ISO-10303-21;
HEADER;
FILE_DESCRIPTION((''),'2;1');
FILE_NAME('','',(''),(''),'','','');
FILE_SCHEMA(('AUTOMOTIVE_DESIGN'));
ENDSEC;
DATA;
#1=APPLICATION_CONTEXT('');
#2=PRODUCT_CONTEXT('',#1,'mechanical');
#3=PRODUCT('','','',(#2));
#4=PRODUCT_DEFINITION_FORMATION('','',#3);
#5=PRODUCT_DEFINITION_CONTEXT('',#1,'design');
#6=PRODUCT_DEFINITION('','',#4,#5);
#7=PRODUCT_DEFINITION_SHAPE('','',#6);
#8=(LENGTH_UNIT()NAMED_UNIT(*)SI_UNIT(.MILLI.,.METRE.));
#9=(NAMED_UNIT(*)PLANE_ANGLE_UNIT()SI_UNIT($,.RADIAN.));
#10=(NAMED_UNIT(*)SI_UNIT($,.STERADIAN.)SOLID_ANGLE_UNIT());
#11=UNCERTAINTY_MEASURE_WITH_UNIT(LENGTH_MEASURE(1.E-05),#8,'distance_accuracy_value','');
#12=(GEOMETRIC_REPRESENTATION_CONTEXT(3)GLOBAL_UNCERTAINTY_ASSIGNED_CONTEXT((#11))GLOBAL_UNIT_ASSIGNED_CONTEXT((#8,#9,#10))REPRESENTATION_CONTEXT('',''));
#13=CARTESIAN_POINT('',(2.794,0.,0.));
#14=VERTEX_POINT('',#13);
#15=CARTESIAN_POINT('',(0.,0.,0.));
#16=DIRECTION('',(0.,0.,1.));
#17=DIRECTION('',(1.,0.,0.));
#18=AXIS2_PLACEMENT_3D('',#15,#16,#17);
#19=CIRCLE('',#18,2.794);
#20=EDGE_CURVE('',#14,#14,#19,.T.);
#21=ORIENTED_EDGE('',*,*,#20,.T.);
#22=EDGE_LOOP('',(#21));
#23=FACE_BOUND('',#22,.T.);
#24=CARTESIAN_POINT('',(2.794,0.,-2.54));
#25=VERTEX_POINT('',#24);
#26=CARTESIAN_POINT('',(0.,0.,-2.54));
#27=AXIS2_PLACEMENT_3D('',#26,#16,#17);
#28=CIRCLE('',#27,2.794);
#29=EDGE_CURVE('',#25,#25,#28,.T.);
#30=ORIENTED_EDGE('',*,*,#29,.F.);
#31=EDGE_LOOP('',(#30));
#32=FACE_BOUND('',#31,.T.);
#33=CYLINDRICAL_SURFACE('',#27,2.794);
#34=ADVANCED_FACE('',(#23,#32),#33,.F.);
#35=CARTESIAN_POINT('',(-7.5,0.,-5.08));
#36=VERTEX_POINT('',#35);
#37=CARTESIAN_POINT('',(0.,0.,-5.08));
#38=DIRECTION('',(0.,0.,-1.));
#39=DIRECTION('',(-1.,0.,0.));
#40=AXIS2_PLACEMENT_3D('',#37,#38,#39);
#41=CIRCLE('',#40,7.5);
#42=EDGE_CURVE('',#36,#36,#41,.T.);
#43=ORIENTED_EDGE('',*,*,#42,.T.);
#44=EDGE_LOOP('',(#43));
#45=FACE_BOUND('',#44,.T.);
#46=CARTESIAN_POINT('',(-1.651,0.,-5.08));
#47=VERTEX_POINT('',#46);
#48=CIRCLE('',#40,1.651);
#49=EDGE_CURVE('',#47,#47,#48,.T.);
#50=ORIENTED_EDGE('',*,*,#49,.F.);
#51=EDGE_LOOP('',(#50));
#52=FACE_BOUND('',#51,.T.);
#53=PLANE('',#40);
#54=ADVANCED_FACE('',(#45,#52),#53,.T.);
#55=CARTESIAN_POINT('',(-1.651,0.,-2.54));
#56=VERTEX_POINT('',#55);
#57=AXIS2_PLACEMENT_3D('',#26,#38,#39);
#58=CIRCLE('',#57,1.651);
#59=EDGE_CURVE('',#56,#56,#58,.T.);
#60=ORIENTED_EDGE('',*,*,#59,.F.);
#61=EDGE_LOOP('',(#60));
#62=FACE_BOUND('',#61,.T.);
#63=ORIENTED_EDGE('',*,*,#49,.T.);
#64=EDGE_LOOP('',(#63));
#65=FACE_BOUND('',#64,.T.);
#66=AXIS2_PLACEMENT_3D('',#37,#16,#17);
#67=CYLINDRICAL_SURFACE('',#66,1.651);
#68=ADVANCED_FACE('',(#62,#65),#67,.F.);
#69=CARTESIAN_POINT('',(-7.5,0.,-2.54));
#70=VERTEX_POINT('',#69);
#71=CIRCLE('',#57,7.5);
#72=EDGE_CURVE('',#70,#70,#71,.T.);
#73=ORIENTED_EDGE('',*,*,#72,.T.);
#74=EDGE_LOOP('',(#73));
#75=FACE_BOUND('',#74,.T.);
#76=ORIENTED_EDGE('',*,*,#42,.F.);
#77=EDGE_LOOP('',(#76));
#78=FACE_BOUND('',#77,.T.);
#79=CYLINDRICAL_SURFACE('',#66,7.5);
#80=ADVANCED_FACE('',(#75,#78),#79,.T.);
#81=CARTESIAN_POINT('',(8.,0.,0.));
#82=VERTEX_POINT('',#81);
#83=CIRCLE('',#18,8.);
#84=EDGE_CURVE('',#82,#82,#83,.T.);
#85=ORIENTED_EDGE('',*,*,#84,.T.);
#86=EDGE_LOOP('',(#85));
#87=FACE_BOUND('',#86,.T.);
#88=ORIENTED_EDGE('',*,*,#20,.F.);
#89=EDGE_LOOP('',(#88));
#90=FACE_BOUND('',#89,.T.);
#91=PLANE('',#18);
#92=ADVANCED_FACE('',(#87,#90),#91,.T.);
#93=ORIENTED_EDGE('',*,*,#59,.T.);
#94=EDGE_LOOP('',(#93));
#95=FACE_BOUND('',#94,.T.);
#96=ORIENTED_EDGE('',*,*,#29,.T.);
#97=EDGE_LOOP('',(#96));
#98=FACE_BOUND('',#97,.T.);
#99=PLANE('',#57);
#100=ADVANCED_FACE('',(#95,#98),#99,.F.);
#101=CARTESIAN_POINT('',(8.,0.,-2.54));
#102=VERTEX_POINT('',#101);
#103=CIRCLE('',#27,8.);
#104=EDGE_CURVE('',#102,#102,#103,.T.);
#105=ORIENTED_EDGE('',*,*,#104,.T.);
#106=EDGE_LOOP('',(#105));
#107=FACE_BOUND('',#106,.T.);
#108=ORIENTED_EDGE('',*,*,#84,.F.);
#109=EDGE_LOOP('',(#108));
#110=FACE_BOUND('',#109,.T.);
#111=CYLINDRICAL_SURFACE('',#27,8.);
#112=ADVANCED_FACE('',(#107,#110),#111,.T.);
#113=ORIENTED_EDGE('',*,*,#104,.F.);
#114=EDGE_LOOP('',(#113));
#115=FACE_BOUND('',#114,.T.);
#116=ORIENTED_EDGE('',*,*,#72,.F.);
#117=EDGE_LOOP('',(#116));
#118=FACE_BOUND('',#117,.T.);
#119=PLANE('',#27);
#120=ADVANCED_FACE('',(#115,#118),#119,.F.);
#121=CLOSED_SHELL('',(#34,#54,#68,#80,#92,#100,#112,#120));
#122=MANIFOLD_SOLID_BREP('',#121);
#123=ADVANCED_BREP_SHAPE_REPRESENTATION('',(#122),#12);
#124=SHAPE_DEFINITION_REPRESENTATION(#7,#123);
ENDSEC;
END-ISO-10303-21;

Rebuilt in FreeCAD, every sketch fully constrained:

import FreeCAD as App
import Part
import Sketcher
from FreeCAD import Vector
Q = App.Units.Quantity

doc = App.newDocument("Part")
params = doc.addObject("Spreadsheet::Sheet", "Params")
for row, (alias, value) in enumerate([
    ("sketch1_diameter", "0.22 in"),
    ("pad1_length", "0.1 in"),
    ("sketch2_diameter", "0.13 in"),
    ("pad2_length", "0.1 in"),
], start=1):
    params.set(f"A{row}", alias)
    params.set(f"B{row}", "=" + value)
    params.setAlias(f"B{row}", alias)

body = doc.addObject("PartDesign::Body", "Body")

# Sketch on XY plane
sketch1 = body.newObject("Sketcher::SketchObject", "Sketch")
sketch1.AttachmentSupport = (doc.getObject("XY_Plane"), [""])
sketch1.MapMode = "FlatFace"
sketch1.addGeometry([
    Part.Circle(Vector(0, 0, 0), Vector(0, 0, 1), 8),
    Part.Circle(Vector(0, 0, 0), Vector(0, 0, 1), 2.8),
], False)
sketch1.addConstraint([
    Sketcher.Constraint("Coincident", 0, 3, -1, 1),
    Sketcher.Constraint("Coincident", 1, 3, -1, 1),
    Sketcher.Constraint("Diameter", 1, Q("0.22 in")),
    Sketcher.Constraint("Diameter", 0, Q("16 mm")),
])
sketch1.setExpression("Constraints[2]", "Params.sketch1_diameter")
pad1 = body.newObject("PartDesign::Pad", "Pad")
pad1.Profile = sketch1
pad1.setExpression("Length", "Params.pad1_length")
pad1.Reversed = True

# Sketch on XY plane
sketch2 = body.newObject("Sketcher::SketchObject", "Sketch001")
sketch2.AttachmentSupport = (doc.getObject("XY_Plane"), [""])
sketch2.MapMode = "FlatFace"
sketch2.AttachmentOffset = App.Placement(Vector(0, 0, -0.1 * 25.4), App.Rotation())
sketch2.addGeometry([
    Part.Circle(Vector(0, 0, 0), Vector(0, 0, 1), 7.5),
    Part.Circle(Vector(0, 0, 0), Vector(0, 0, 1), 1.7),
], False)
sketch2.addConstraint([
    Sketcher.Constraint("Coincident", 0, 3, -1, 1),
    Sketcher.Constraint("Coincident", 1, 3, -1, 1),
    Sketcher.Constraint("Diameter", 1, Q("0.13 in")),
    Sketcher.Constraint("Diameter", 0, Q("15 mm")),
])
sketch2.setExpression("Constraints[2]", "Params.sketch2_diameter")
pad2 = body.newObject("PartDesign::Pad", "Pad001")
pad2.Profile = sketch2
pad2.setExpression("Length", "Params.pad2_length")
pad2.Reversed = True

doc.recompute()
